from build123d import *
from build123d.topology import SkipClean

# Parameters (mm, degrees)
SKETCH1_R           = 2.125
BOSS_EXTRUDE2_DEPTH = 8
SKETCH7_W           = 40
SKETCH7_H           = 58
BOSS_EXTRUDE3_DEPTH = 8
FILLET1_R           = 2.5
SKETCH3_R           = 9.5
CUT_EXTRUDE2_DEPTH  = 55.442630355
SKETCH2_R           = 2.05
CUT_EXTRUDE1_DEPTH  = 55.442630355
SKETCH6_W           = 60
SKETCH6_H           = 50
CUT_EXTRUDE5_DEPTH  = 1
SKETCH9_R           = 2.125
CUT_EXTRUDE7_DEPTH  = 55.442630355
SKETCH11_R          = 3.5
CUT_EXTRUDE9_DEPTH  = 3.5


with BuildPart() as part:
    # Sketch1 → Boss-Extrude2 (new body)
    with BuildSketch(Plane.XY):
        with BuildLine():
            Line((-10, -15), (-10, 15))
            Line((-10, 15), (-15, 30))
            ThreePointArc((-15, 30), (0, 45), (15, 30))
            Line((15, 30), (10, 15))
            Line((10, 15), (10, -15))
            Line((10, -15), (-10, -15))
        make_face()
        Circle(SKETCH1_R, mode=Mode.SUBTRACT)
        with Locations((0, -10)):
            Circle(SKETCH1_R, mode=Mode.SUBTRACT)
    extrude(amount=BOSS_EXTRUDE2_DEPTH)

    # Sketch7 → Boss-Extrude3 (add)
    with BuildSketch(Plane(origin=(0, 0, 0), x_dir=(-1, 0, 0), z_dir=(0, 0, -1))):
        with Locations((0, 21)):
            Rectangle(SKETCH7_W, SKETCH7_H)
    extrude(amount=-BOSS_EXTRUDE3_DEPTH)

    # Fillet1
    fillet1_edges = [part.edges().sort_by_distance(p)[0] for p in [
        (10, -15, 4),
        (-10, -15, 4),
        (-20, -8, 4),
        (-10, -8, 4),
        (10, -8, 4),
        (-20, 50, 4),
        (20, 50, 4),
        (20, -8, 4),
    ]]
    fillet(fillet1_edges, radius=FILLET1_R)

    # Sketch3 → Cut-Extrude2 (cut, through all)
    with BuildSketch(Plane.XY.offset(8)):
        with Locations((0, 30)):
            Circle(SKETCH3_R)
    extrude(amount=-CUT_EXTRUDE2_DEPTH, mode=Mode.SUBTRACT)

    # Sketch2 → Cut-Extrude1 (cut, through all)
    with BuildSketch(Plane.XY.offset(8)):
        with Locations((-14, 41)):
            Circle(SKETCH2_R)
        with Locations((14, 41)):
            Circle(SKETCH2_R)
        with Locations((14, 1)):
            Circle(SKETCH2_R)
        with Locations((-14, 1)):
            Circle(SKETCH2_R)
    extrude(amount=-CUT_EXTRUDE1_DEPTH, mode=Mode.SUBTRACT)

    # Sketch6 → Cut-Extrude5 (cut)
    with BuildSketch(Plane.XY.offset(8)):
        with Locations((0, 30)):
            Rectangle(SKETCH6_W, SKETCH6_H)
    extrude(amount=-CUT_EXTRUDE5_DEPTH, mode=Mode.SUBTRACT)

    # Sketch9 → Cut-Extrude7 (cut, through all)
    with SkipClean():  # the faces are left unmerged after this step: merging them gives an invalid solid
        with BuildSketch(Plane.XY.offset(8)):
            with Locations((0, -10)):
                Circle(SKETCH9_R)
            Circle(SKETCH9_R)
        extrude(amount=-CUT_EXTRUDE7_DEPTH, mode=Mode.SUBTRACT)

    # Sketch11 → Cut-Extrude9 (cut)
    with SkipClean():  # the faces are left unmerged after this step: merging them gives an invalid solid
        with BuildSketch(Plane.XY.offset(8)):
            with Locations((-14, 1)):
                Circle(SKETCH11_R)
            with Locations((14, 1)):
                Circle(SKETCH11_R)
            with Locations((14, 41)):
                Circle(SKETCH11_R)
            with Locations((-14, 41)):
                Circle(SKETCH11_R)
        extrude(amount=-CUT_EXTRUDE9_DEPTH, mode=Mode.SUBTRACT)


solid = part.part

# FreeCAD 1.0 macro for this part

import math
import FreeCAD as App
import Part
import Sketcher


def edges_at(feature, points):
    """Names of the edges that pass closest to the given points."""
    edges = feature.Shape.Edges
    near = lambda p: min(range(len(edges)), key=lambda i: edges[i].distToShape(Part.Vertex(*p))[0])
    return sorted({f"Edge{near(p) + 1}" for p in points})


def add_polygon(sketch, points):
    """Adds a closed chain of lines whose ends are joined by coincident constraints."""
    first, n = sketch.GeometryCount, len(points)
    for a, b in zip(points, points[1:] + points[:1]):
        sketch.addGeometry(Part.LineSegment(App.Vector(*a, 0), App.Vector(*b, 0)), False)
    for i in range(n):
        sketch.addConstraint(Sketcher.Constraint("Coincident", first + i, 2, first + (i + 1) % n, 1))

doc = App.newDocument("Part")
body = doc.addObject("PartDesign::Body", "Body")

# Sketch on XY plane
sketch1 = body.newObject("Sketcher::SketchObject", "Sketch")
sketch1.AttachmentSupport = (doc.getObject("XY_Plane"), [""])
sketch1.MapMode = "FlatFace"
sketch1.addGeometry(Part.LineSegment(App.Vector(-10, 15, 0), App.Vector(-10, -15, 0)), False)
sketch1.addGeometry(Part.LineSegment(App.Vector(-10, -15, 0), App.Vector(10, -15, 0)), False)
sketch1.addGeometry(Part.LineSegment(App.Vector(10, -15, 0), App.Vector(10, 15, 0)), False)
sketch1.addGeometry(Part.LineSegment(App.Vector(10, 15, 0), App.Vector(15, 30, 0)), False)
sketch1.addGeometry(Part.ArcOfCircle(Part.Circle(App.Vector(0, 30, 0), App.Vector(0, 0, 1), 15), math.radians(0), math.radians(180)), False)
sketch1.addGeometry(Part.LineSegment(App.Vector(-15, 30, 0), App.Vector(-10, 15, 0)), False)
sketch1.addGeometry(Part.Circle(App.Vector(0, -10, 0), App.Vector(0, 0, 1), 2.1), False)
sketch1.addGeometry(Part.Circle(App.Vector(0, 0, 0), App.Vector(0, 0, 1), 2.1), False)
sketch1.addConstraint(Sketcher.Constraint("Coincident", 0, 2, 1, 1))
sketch1.addConstraint(Sketcher.Constraint("Coincident", 1, 2, 2, 1))
sketch1.addConstraint(Sketcher.Constraint("Coincident", 2, 2, 3, 1))
sketch1.addConstraint(Sketcher.Constraint("Coincident", 3, 2, 4, 1))
sketch1.addConstraint(Sketcher.Constraint("Coincident", 4, 2, 5, 1))
sketch1.addConstraint(Sketcher.Constraint("Coincident", 5, 2, 0, 1))
sketch1.addConstraint(Sketcher.Constraint("Vertical", 0))
sketch1.addConstraint(Sketcher.Constraint("Horizontal", 1))
sketch1.addConstraint(Sketcher.Constraint("Vertical", 2))
sketch1.addConstraint(Sketcher.Constraint("Coincident", 7, 3, -1, 1))
sketch1.addConstraint(Sketcher.Constraint("Equal", 6, 7))
sketch1.addConstraint(Sketcher.Constraint("Symmetric", 0, 2, 2, 2, -1, 1))
sketch1.addConstraint(Sketcher.Constraint("Symmetric", 3, 2, 4, 2, -2))
sketch1.addConstraint(Sketcher.Constraint("PointOnObject", 6, 3, -2))
sketch1.addConstraint(Sketcher.Constraint("Horizontal", 4, 3, 3, 2))
sketch1.addConstraint(Sketcher.Constraint("Horizontal", 2, 2, 5, 2))
sketch1.addConstraint(Sketcher.Constraint("Radius", 4, 15.0))
sketch1.addConstraint(Sketcher.Constraint("Diameter", 6, 4.25))
sketch1.addConstraint(Sketcher.Constraint("DistanceX", 1, 1, 1, 2, 20.0))
sketch1.addConstraint(Sketcher.Constraint("DistanceY", 0, 2, 0, 1, 30.0))
sketch1.addConstraint(Sketcher.Constraint("DistanceY", -1, 1, 4, 3, 30.0))
sketch1.addConstraint(Sketcher.Constraint("DistanceY", 6, 3, -1, 1, 10.0))
pad1 = body.newObject("PartDesign::Pad", "Pad")
pad1.Profile = sketch1
pad1.Length = 8

# Sketch on XY plane
sketch2 = body.newObject("Sketcher::SketchObject", "Sketch001")
sketch2.AttachmentSupport = (doc.getObject("XY_Plane"), [""])
sketch2.MapMode = "FlatFace"
add_polygon(sketch2, [(20, 50), (20, -8), (-20, -8), (-20, 50)])  # lines 0-3
sketch2.addConstraint(Sketcher.Constraint("Vertical", 0))
sketch2.addConstraint(Sketcher.Constraint("Horizontal", 1))
sketch2.addConstraint(Sketcher.Constraint("Vertical", 2))
sketch2.addConstraint(Sketcher.Constraint("Horizontal", 3))
sketch2.addConstraint(Sketcher.Constraint("DistanceX", 1, 2, 1, 1, 40.0))
sketch2.addConstraint(Sketcher.Constraint("DistanceY", 0, 2, 0, 1, 58.0))
sketch2.addConstraint(Sketcher.Constraint("DistanceX", -1, 1, 0, 2, 20.0))
sketch2.addConstraint(Sketcher.Constraint("DistanceY", 0, 2, -1, 1, 8.0))
pad2 = body.newObject("PartDesign::Pad", "Pad001")
pad2.Profile = sketch2
pad2.Length = 8
doc.recompute()

fillet = body.newObject("PartDesign::Fillet", "Fillet")
fillet.Base = (pad2, edges_at(pad2, [
    (10, -15, 4),
    (-10, -15, 4),
    (-20, -8, 4),
    (-10, -8, 4),
    (10, -8, 4),
    (-20, 50, 4),
    (20, 50, 4),
    (20, -8, 4),
]))
fillet.Radius = 2.5

# Sketch on XY plane
sketch3 = body.newObject("Sketcher::SketchObject", "Sketch002")
sketch3.AttachmentSupport = (doc.getObject("XY_Plane"), [""])
sketch3.MapMode = "FlatFace"
sketch3.AttachmentOffset = App.Placement(App.Vector(0, 0, 8), App.Rotation())
sketch3.addGeometry(Part.Circle(App.Vector(0, 30, 0), App.Vector(0, 0, 1), 10), False)
sketch3.addConstraint(Sketcher.Constraint("PointOnObject", 0, 3, -2))
sketch3.addConstraint(Sketcher.Constraint("Diameter", 0, 19.0))
sketch3.addConstraint(Sketcher.Constraint("DistanceY", -1, 1, 0, 3, 30.0))
pocket1 = body.newObject("PartDesign::Pocket", "Pocket")
pocket1.Profile = sketch3
pocket1.Type = "ThroughAll"

# Sketch on XY plane
sketch4 = body.newObject("Sketcher::SketchObject", "Sketch003")
sketch4.AttachmentSupport = (doc.getObject("XY_Plane"), [""])
sketch4.MapMode = "FlatFace"
sketch4.AttachmentOffset = App.Placement(App.Vector(0, 0, 8), App.Rotation())
sketch4.addGeometry(Part.Circle(App.Vector(-14, 41, 0), App.Vector(0, 0, 1), 2), False)
sketch4.addGeometry(Part.Circle(App.Vector(14, 41, 0), App.Vector(0, 0, 1), 2), False)
sketch4.addGeometry(Part.Circle(App.Vector(14, 1, 0), App.Vector(0, 0, 1), 2), False)
sketch4.addGeometry(Part.Circle(App.Vector(-14, 1, 0), App.Vector(0, 0, 1), 2), False)
sketch4.addConstraint(Sketcher.Constraint("Equal", 0, 1))
sketch4.addConstraint(Sketcher.Constraint("Equal", 1, 2))
sketch4.addConstraint(Sketcher.Constraint("Equal", 2, 3))
sketch4.addConstraint(Sketcher.Constraint("Symmetric", 0, 3, 1, 3, -2))
sketch4.addConstraint(Sketcher.Constraint("Symmetric", 2, 3, 3, 3, -2))
sketch4.addConstraint(Sketcher.Constraint("Vertical", 1, 3, 2, 3))
sketch4.addConstraint(Sketcher.Constraint("Diameter", 0, 4.1))
sketch4.addConstraint(Sketcher.Constraint("DistanceX", 0, 3, -1, 1, 14.0))
sketch4.addConstraint(Sketcher.Constraint("DistanceY", -1, 1, 0, 3, 41.0))
sketch4.addConstraint(Sketcher.Constraint("DistanceY", -1, 1, 2, 3, 1.0))
pocket2 = body.newObject("PartDesign::Pocket", "Pocket001")
pocket2.Profile = sketch4
pocket2.Type = "ThroughAll"

# Sketch on XY plane
sketch5 = body.newObject("Sketcher::SketchObject", "Sketch004")
sketch5.AttachmentSupport = (doc.getObject("XY_Plane"), [""])
sketch5.MapMode = "FlatFace"
sketch5.AttachmentOffset = App.Placement(App.Vector(0, 0, 8), App.Rotation())
add_polygon(sketch5, [(-30, 55), (-30, 5), (30, 5), (30, 55)])  # lines 0-3
sketch5.addConstraint(Sketcher.Constraint("Vertical", 0))
sketch5.addConstraint(Sketcher.Constraint("Horizontal", 1))
sketch5.addConstraint(Sketcher.Constraint("Vertical", 2))
sketch5.addConstraint(Sketcher.Constraint("Horizontal", 3))
sketch5.addConstraint(Sketcher.Constraint("DistanceX", 1, 1, 1, 2, 60.0))
sketch5.addConstraint(Sketcher.Constraint("DistanceY", 0, 2, 0, 1, 50.0))
sketch5.addConstraint(Sketcher.Constraint("DistanceX", 0, 2, -1, 1, 30.0))
sketch5.addConstraint(Sketcher.Constraint("DistanceY", -1, 1, 0, 2, 5.0))
pocket3 = body.newObject("PartDesign::Pocket", "Pocket002")
pocket3.Profile = sketch5
pocket3.Length = 1

# Sketch on XY plane
sketch6 = body.newObject("Sketcher::SketchObject", "Sketch005")
sketch6.AttachmentSupport = (doc.getObject("XY_Plane"), [""])
sketch6.MapMode = "FlatFace"
sketch6.AttachmentOffset = App.Placement(App.Vector(0, 0, 8), App.Rotation())
sketch6.addGeometry(Part.Circle(App.Vector(0, -10, 0), App.Vector(0, 0, 1), 2.1), False)
sketch6.addGeometry(Part.Circle(App.Vector(0, 0, 0), App.Vector(0, 0, 1), 2.1), False)
sketch6.addConstraint(Sketcher.Constraint("Coincident", 1, 3, -1, 1))
sketch6.addConstraint(Sketcher.Constraint("Equal", 0, 1))
sketch6.addConstraint(Sketcher.Constraint("PointOnObject", 0, 3, -2))
sketch6.addConstraint(Sketcher.Constraint("Diameter", 0, 4.25))
sketch6.addConstraint(Sketcher.Constraint("DistanceY", 0, 3, -1, 1, 10.0))
pocket4 = body.newObject("PartDesign::Pocket", "Pocket003")
pocket4.Profile = sketch6
pocket4.Type = "ThroughAll"

# Sketch on XY plane
sketch7 = body.newObject("Sketcher::SketchObject", "Sketch006")
sketch7.AttachmentSupport = (doc.getObject("XY_Plane"), [""])
sketch7.MapMode = "FlatFace"
sketch7.AttachmentOffset = App.Placement(App.Vector(0, 0, 8), App.Rotation())
sketch7.addGeometry(Part.Circle(App.Vector(-14, 1, 0), App.Vector(0, 0, 1), 3.5), False)
sketch7.addGeometry(Part.Circle(App.Vector(14, 1, 0), App.Vector(0, 0, 1), 3.5), False)
sketch7.addGeometry(Part.Circle(App.Vector(14, 41, 0), App.Vector(0, 0, 1), 3.5), False)
sketch7.addGeometry(Part.Circle(App.Vector(-14, 41, 0), App.Vector(0, 0, 1), 3.5), False)
sketch7.addConstraint(Sketcher.Constraint("Equal", 0, 1))
sketch7.addConstraint(Sketcher.Constraint("Equal", 1, 2))
sketch7.addConstraint(Sketcher.Constraint("Equal", 2, 3))
sketch7.addConstraint(Sketcher.Constraint("Symmetric", 0, 3, 1, 3, -2))
sketch7.addConstraint(Sketcher.Constraint("Symmetric", 2, 3, 3, 3, -2))
sketch7.addConstraint(Sketcher.Constraint("Vertical", 1, 3, 2, 3))
sketch7.addConstraint(Sketcher.Constraint("Diameter", 0, 7.0))
sketch7.addConstraint(Sketcher.Constraint("DistanceX", 0, 3, -1, 1, 14.0))
sketch7.addConstraint(Sketcher.Constraint("DistanceY", -1, 1, 0, 3, 1.0))
sketch7.addConstraint(Sketcher.Constraint("DistanceY", -1, 1, 2, 3, 41.0))
pocket5 = body.newObject("PartDesign::Pocket", "Pocket004")
pocket5.Profile = sketch7
pocket5.Length = 3.5

doc.recompute()
